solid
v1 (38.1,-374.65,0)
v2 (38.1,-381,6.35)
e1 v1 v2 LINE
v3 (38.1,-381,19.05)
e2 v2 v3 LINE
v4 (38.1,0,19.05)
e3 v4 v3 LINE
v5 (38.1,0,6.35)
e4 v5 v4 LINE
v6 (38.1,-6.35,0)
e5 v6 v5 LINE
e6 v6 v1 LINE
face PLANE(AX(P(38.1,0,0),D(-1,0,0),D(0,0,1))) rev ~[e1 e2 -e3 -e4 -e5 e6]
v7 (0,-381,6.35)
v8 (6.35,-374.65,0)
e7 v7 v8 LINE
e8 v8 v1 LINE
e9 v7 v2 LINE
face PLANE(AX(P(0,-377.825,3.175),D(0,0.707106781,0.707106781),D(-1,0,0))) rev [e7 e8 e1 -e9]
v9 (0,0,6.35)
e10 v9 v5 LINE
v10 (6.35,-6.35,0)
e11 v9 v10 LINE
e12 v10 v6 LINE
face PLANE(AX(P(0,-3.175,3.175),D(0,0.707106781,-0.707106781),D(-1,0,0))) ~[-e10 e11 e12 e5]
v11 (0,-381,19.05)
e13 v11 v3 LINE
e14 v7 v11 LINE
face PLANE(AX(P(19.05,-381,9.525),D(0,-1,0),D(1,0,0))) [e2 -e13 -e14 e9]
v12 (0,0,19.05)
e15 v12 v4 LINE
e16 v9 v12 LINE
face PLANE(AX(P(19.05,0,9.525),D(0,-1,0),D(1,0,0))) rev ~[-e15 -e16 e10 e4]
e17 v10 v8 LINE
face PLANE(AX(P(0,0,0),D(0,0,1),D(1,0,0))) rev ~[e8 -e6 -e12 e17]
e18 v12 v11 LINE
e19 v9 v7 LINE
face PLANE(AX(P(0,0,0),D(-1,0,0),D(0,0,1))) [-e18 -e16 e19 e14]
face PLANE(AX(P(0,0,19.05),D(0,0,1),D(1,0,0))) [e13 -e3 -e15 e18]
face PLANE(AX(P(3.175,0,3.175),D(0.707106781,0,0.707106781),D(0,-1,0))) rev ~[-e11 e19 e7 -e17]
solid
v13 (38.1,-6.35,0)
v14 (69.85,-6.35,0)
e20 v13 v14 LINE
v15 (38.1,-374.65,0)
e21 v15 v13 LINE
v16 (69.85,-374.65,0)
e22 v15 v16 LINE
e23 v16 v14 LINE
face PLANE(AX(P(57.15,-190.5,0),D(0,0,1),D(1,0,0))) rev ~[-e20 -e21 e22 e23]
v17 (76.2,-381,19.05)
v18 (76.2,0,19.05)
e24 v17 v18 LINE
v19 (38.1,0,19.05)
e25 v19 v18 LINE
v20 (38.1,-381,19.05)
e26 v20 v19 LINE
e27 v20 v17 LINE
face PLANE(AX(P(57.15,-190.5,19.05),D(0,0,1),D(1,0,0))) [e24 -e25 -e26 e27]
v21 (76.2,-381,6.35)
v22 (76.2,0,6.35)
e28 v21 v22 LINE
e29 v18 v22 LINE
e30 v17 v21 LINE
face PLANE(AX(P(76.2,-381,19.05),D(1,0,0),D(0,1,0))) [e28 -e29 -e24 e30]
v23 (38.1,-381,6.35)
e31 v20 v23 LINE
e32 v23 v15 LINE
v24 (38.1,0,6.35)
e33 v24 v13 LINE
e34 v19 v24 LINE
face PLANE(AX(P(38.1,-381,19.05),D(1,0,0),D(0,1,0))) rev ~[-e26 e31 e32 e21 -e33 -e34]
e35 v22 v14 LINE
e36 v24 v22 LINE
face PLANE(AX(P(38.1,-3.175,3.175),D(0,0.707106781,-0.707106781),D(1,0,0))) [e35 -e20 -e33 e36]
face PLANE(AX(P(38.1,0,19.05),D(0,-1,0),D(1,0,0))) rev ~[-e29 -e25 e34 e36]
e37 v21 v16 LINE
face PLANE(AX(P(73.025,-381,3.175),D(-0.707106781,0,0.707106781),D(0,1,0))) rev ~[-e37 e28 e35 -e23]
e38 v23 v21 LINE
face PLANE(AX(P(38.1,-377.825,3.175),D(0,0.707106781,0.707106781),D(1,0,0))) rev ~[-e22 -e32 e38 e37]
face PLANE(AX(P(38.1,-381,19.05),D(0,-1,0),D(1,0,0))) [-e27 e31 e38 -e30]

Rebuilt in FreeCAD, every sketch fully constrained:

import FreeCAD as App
import Part
import Sketcher
from FreeCAD import Vector
Q = App.Units.Quantity


def edges_at(feature, points):
    """Names of the edges that pass closest to the given points."""
    edges = feature.Shape.Edges
    near = lambda p: min(range(len(edges)), key=lambda i: edges[i].distToShape(Part.Vertex(*p))[0])
    return sorted({f"Edge{near(p) + 1}" for p in points})

doc = App.newDocument("Part")
body = doc.addObject("PartDesign::Body", "Body")

sketch1 = body.newObject("Sketcher::SketchObject", "Sketch")
sketch1.AttachmentSupport = (doc.getObject("XZ_Plane"), [""])
sketch1.MapMode = "FlatFace"
sketch1.addGeometry([
    Part.LineSegment(Vector(0, 19, 0), Vector(0, 0, 0)),
    Part.LineSegment(Vector(0, 0, 0), Vector(38, 0, 0)),
    Part.LineSegment(Vector(38, 0, 0), Vector(38, 19, 0)),
    Part.LineSegment(Vector(38, 19, 0), Vector(0, 19, 0)),
], False)
sketch1.addConstraint([
    Sketcher.Constraint("Coincident", 0, 2, 1, 1),
    Sketcher.Constraint("Coincident", 1, 2, 2, 1),
    Sketcher.Constraint("Coincident", 2, 2, 3, 1),
    Sketcher.Constraint("Coincident", 3, 2, 0, 1),
    Sketcher.Constraint("Vertical", 0),
    Sketcher.Constraint("Horizontal", 1),
    Sketcher.Constraint("Vertical", 2),
    Sketcher.Constraint("Horizontal", 3),
    Sketcher.Constraint("Coincident", 0, 2, -1, 1),
    Sketcher.Constraint("DistanceX", 1, 1, 1, 2, Q("1.5 in")),
    Sketcher.Constraint("DistanceY", 0, 2, 0, 1, Q("0.75 in")),
])
pad1 = body.newObject("PartDesign::Pad", "Pad")
pad1.Profile = sketch1
pad1.Length = Q("15 in")
doc.recompute()

chamfer = body.newObject("PartDesign::Chamfer", "Chamfer")
chamfer.Base = (pad1, edges_at(pad1, [(0, -190.5, 0), (19.05, -381, 0), (19.05, 0, 0)]))
chamfer.Size = Q("0.25 in")
body2 = doc.addObject("PartDesign::Body", "Body001")

sketch2 = body2.newObject("Sketcher::SketchObject", "Sketch001")
sketch2.AttachmentSupport = (doc.getObject("XY_Plane001"), [""])
sketch2.MapMode = "FlatFace"
sketch2.AttachmentOffset = App.Placement(Vector(0, 0, 0.75 * 25.4), App.Rotation())
sketch2.addGeometry([
    Part.LineSegment(Vector(38, 0, 0), Vector(38, -381, 0)),
    Part.LineSegment(Vector(38, -381, 0), Vector(76, -381, 0)),
    Part.LineSegment(Vector(76, -381, 0), Vector(76, 0, 0)),
    Part.LineSegment(Vector(76, 0, 0), Vector(38, 0, 0)),
], False)
sketch2.addConstraint([
    Sketcher.Constraint("Coincident", 0, 2, 1, 1),
    Sketcher.Constraint("Coincident", 1, 2, 2, 1),
    Sketcher.Constraint("Coincident", 2, 2, 3, 1),
    Sketcher.Constraint("Coincident", 3, 2, 0, 1),
    Sketcher.Constraint("Vertical", 0),
    Sketcher.Constraint("Horizontal", 1),
    Sketcher.Constraint("Vertical", 2),
    Sketcher.Constraint("Horizontal", 3),
    Sketcher.Constraint("PointOnObject", 2, 2, -1),
    Sketcher.Constraint("DistanceY", 0, 2, 0, 1, Q("15 in")),
    Sketcher.Constraint("DistanceX", 1, 1, 1, 2, Q("1.5 in")),
    Sketcher.Constraint("DistanceX", -1, 1, 1, 2, Q("3 in")),
])
pad2 = body2.newObject("PartDesign::Pad", "Pad001")
pad2.Profile = sketch2
pad2.Length = Q("0.75 in")
pad2.Reversed = True
doc.recompute()

chamfer2 = body2.newObject("PartDesign::Chamfer", "Chamfer001")
chamfer2.Base = (pad2, edges_at(pad2, [(76.2, -190.5, 0), (57.15, -381, 0), (57.15, 0, 0)]))
chamfer2.Size = Q("0.25 in")

doc.recompute()
